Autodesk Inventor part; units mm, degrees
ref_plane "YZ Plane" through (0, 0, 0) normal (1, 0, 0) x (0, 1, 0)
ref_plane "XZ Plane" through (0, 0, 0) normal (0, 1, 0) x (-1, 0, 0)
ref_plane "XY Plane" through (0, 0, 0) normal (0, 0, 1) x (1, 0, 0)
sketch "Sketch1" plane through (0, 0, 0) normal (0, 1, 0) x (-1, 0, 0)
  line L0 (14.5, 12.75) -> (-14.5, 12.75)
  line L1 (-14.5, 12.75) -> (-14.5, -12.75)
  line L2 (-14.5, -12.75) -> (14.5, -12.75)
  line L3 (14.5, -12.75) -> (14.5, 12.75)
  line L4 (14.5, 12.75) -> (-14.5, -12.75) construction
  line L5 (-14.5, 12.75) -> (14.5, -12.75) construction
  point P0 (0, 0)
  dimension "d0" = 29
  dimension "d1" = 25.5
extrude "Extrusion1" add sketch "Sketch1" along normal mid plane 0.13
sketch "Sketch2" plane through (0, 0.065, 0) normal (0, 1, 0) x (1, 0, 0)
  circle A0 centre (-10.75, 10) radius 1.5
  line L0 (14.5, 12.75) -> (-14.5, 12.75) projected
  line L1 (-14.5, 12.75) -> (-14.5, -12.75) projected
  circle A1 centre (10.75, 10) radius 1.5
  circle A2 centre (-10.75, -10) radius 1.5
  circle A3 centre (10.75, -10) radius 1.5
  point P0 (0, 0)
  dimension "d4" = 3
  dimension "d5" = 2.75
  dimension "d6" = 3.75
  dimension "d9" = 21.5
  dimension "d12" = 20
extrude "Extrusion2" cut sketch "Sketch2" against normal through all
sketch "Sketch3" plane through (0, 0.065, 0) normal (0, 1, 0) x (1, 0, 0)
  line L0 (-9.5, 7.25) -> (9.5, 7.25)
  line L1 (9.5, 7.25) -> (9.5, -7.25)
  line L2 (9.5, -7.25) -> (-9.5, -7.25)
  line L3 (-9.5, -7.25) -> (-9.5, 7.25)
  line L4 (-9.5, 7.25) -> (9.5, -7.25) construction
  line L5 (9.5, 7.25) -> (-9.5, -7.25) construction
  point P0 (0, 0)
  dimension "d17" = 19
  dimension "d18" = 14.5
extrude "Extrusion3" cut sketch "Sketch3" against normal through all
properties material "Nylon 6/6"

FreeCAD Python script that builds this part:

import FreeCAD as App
import Part
import Sketcher
from FreeCAD import Vector

doc = App.newDocument("Part")
body = doc.addObject("PartDesign::Body", "Body")

# Sketch on XZ plane
sketch1 = doc.addObject("Sketcher::SketchObject", "Sketch")
body.addObject(sketch1)
sketch1.AttachmentSupport = (doc.XZ_Plane, [""])
sketch1.MapMode = "FlatFace"
sketch1.addGeometry(Part.LineSegment(Vector(-14.5, -12.75, 0), Vector(-14.5, 12.75, 0)), False)
sketch1.addGeometry(Part.LineSegment(Vector(-14.5, 12.75, 0), Vector(14.5, 12.75, 0)), False)
sketch1.addGeometry(Part.LineSegment(Vector(14.5, 12.75, 0), Vector(14.5, -12.75, 0)), False)
sketch1.addGeometry(Part.LineSegment(Vector(14.5, -12.75, 0), Vector(-14.5, -12.75, 0)), False)
sketch1.addConstraint(Sketcher.Constraint("Coincident", 0, 2, 1, 1))
sketch1.addConstraint(Sketcher.Constraint("Coincident", 1, 2, 2, 1))
sketch1.addConstraint(Sketcher.Constraint("Coincident", 2, 2, 3, 1))
sketch1.addConstraint(Sketcher.Constraint("Coincident", 3, 2, 0, 1))
sketch1.addConstraint(Sketcher.Constraint("Vertical", 0))
sketch1.addConstraint(Sketcher.Constraint("Horizontal", 1))
sketch1.addConstraint(Sketcher.Constraint("Vertical", 2))
sketch1.addConstraint(Sketcher.Constraint("Horizontal", 3))
sketch1.addConstraint(Sketcher.Constraint("Symmetric", 0, 2, 2, 2, -1, 1))
sketch1.addConstraint(Sketcher.Constraint("DistanceX", 1, 1, 1, 2, 29.0))
sketch1.addConstraint(Sketcher.Constraint("DistanceY", 0, 1, 0, 2, 25.5))
pad1 = doc.addObject("PartDesign::Pad", "Pad")
body.addObject(pad1)
pad1.Profile = sketch1
pad1.Length = 0.13
pad1.Midplane = True

# Sketch on XZ plane
sketch2 = doc.addObject("Sketcher::SketchObject", "Sketch001")
body.addObject(sketch2)
sketch2.AttachmentSupport = (doc.XZ_Plane, [""])
sketch2.MapMode = "FlatFace"
sketch2.AttachmentOffset = App.Placement(Vector(0, 0, -0.065), App.Rotation())
sketch2.addGeometry(Part.Circle(Vector(-10.75, -10, 0), Vector(0, 0, 1), 1.5), False)
sketch2.addGeometry(Part.Circle(Vector(10.75, -10, 0), Vector(0, 0, 1), 1.5), False)
sketch2.addGeometry(Part.Circle(Vector(-10.75, 10, 0), Vector(0, 0, 1), 1.5), False)
sketch2.addGeometry(Part.Circle(Vector(10.75, 10, 0), Vector(0, 0, 1), 1.5), False)
sketch2.addConstraint(Sketcher.Constraint("Equal", 0, 1))
sketch2.addConstraint(Sketcher.Constraint("Equal", 1, 2))
sketch2.addConstraint(Sketcher.Constraint("Equal", 2, 3))
sketch2.addConstraint(Sketcher.Constraint("Symmetric", 1, 3, 2, 3, -1, 1))
sketch2.addConstraint(Sketcher.Constraint("Symmetric", 0, 3, 3, 3, -1, 1))
sketch2.addConstraint(Sketcher.Constraint("Symmetric", 0, 3, 1, 3, -2))
sketch2.addConstraint(Sketcher.Constraint("Diameter", 0, 3.0))
sketch2.addConstraint(Sketcher.Constraint("DistanceY", 0, 3, 2, 3, 20.0))
sketch2.addConstraint(Sketcher.Constraint("DistanceX", 0, 3, 1, 3, 21.5))
pocket1 = doc.addObject("PartDesign::Pocket", "Pocket")
body.addObject(pocket1)
pocket1.Profile = sketch2
pocket1.Type = "ThroughAll"
pocket1.Reversed = True

# Sketch on XZ plane
sketch3 = doc.addObject("Sketcher::SketchObject", "Sketch002")
body.addObject(sketch3)
sketch3.AttachmentSupport = (doc.XZ_Plane, [""])
sketch3.MapMode = "FlatFace"
sketch3.AttachmentOffset = App.Placement(Vector(0, 0, -0.065), App.Rotation())
sketch3.addGeometry(Part.LineSegment(Vector(9.5, -7.25, 0), Vector(-9.5, -7.25, 0)), False)
sketch3.addGeometry(Part.LineSegment(Vector(-9.5, -7.25, 0), Vector(-9.5, 7.25, 0)), False)
sketch3.addGeometry(Part.LineSegment(Vector(-9.5, 7.25, 0), Vector(9.5, 7.25, 0)), False)
sketch3.addGeometry(Part.LineSegment(Vector(9.5, 7.25, 0), Vector(9.5, -7.25, 0)), False)
sketch3.addConstraint(Sketcher.Constraint("Coincident", 0, 2, 1, 1))
sketch3.addConstraint(Sketcher.Constraint("Coincident", 1, 2, 2, 1))
sketch3.addConstraint(Sketcher.Constraint("Coincident", 2, 2, 3, 1))
sketch3.addConstraint(Sketcher.Constraint("Coincident", 3, 2, 0, 1))
sketch3.addConstraint(Sketcher.Constraint("Horizontal", 0))
sketch3.addConstraint(Sketcher.Constraint("Vertical", 1))
sketch3.addConstraint(Sketcher.Constraint("Horizontal", 2))
sketch3.addConstraint(Sketcher.Constraint("Vertical", 3))
sketch3.addConstraint(Sketcher.Constraint("Symmetric", 0, 2, 2, 2, -1, 1))
sketch3.addConstraint(Sketcher.Constraint("DistanceX", 0, 2, 0, 1, 19.0))
sketch3.addConstraint(Sketcher.Constraint("DistanceY", 1, 1, 1, 2, 14.5))
pocket2 = doc.addObject("PartDesign::Pocket", "Pocket001")
body.addObject(pocket2)
pocket2.Profile = sketch3
pocket2.Type = "ThroughAll"
pocket2.Reversed = True

doc.recompute()
